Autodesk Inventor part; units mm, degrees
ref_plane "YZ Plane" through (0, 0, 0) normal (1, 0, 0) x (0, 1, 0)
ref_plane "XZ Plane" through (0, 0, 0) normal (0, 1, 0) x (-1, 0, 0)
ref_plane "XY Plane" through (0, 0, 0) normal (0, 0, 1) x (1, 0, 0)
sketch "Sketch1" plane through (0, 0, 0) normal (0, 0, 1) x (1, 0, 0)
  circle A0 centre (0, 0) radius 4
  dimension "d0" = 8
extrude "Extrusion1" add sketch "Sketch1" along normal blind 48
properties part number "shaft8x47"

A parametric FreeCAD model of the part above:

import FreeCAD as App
import Part
import Sketcher

V = App.Vector
Q = App.Units.Quantity

doc = App.newDocument("Part")
body = doc.addObject("PartDesign::Body", "Body")

sketch1 = body.newObject("Sketcher::SketchObject", "Sketch")
sketch1.AttachmentSupport = (doc.getObject("XY_Plane"), [""])
sketch1.MapMode = "FlatFace"
sketch1.addGeometry(Part.Circle(V(0, 0, 0), V(0, 0, 1), 4), False)
sketch1.addConstraint([
    Sketcher.Constraint("Coincident", 0, 3, -1, 1),
    Sketcher.Constraint("Diameter", 0, Q("8 mm")),
])
pad1 = body.newObject("PartDesign::Pad", "Pad")
pad1.Profile = sketch1
pad1.Length = 48

doc.recompute()
